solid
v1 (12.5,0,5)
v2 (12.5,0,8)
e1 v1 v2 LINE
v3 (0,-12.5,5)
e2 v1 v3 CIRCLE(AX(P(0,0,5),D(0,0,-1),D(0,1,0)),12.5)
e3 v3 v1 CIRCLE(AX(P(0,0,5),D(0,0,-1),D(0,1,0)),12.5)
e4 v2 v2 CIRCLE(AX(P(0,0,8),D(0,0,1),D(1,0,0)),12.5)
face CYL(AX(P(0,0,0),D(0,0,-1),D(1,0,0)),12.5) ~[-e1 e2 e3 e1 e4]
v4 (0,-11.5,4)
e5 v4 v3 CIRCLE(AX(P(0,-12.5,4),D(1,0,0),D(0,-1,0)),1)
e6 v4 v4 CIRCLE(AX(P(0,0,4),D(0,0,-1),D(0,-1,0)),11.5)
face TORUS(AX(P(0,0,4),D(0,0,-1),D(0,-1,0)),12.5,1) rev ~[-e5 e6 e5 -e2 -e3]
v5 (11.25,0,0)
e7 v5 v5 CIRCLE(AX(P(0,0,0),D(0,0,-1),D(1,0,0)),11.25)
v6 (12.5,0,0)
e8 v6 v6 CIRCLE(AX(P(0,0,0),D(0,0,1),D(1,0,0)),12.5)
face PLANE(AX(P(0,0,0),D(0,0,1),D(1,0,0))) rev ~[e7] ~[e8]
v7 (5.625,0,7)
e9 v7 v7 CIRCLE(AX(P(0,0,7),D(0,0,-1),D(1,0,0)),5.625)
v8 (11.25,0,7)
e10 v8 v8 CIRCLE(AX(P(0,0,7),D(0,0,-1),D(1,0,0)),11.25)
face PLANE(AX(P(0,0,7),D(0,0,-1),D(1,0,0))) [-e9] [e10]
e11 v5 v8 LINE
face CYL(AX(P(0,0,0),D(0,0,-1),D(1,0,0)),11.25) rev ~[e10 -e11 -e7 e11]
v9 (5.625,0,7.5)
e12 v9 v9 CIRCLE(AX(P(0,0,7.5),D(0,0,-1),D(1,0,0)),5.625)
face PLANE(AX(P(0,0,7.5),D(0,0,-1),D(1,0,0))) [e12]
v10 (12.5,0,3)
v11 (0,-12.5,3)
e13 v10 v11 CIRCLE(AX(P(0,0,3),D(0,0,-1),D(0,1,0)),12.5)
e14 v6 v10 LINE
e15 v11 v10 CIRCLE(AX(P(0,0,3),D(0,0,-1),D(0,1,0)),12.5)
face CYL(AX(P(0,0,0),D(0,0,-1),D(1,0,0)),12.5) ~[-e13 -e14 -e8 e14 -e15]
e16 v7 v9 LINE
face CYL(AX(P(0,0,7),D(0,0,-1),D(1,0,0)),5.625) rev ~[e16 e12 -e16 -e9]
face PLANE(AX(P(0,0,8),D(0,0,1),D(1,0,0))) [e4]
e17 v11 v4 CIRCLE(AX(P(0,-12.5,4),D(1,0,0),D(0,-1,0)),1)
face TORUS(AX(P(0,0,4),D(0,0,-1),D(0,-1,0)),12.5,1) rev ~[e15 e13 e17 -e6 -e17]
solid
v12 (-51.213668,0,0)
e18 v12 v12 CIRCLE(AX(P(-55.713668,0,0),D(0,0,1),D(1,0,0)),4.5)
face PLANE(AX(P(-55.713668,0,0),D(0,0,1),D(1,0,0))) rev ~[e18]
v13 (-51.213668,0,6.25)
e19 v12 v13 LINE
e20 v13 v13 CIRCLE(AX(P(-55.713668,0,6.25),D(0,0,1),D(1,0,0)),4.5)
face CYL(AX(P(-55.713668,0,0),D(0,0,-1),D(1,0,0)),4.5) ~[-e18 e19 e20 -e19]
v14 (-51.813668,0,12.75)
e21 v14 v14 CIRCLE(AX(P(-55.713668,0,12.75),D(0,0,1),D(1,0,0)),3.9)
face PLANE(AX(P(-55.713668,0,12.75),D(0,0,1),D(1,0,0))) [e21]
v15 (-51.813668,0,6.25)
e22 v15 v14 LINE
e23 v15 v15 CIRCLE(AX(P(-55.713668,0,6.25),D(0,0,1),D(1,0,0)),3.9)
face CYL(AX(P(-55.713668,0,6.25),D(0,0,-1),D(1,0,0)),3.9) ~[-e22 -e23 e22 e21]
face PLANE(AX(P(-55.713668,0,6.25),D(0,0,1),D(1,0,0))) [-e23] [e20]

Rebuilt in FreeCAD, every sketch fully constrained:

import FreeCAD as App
import Part
import Sketcher

doc = App.newDocument("Part")
body = doc.addObject("PartDesign::Body", "Body")

# Sketch on XY plane
sketch1 = doc.addObject("Sketcher::SketchObject", "Sketch")
body.addObject(sketch1)
sketch1.AttachmentSupport = (doc.XY_Plane, [""])
sketch1.MapMode = "FlatFace"
sketch1.addGeometry(Part.Circle(App.Vector(0, 0, 0), App.Vector(0, 0, 1), 12), False)
sketch1.addConstraint(Sketcher.Constraint("Coincident", 0, 3, -1, 1))
sketch1.addConstraint(Sketcher.Constraint("Diameter", 0, 25.0))
pad1 = doc.addObject("PartDesign::Pad", "Pad")
body.addObject(pad1)
pad1.Profile = sketch1
pad1.Length = 8

# Sketch on XZ plane
sketch2 = doc.addObject("Sketcher::SketchObject", "Sketch001")
body.addObject(sketch2)
sketch2.AttachmentSupport = (doc.XZ_Plane, [""])
sketch2.MapMode = "FlatFace"
sketch2.addGeometry(Part.Circle(App.Vector(-12.5, 4, 0), App.Vector(0, 0, 1), 1), False)
sketch2.addConstraint(Sketcher.Constraint("Diameter", 0, 2.0))
sketch2.addConstraint(Sketcher.Constraint("DistanceY", -1, 1, 0, 3, 4.0))
sketch2.addConstraint(Sketcher.Constraint("DistanceX", 0, 3, -1, 1, 12.5))

# Sketch on XY plane
sketch3 = doc.addObject("Sketcher::SketchObject", "Sketch002")
body.addObject(sketch3)
sketch3.AttachmentSupport = (doc.XY_Plane, [""])
sketch3.MapMode = "FlatFace"
sketch3.addGeometry(Part.Circle(App.Vector(0, 0, 0), App.Vector(0, 0, 1), 12), False)
sketch3.addConstraint(Sketcher.Constraint("Coincident", 0, 3, -1, 1))
sketch3.addConstraint(Sketcher.Constraint("Diameter", 0, 25.0))
doc.recompute()

subtractivepipe = doc.addObject("PartDesign::SubtractivePipe", "SubtractivePipe")
body.addObject(subtractivepipe)
subtractivepipe.Profile = sketch2
subtractivepipe.Spine = (sketch3, ["Edge1"])

# Sketch on XY plane
sketch4 = doc.addObject("Sketcher::SketchObject", "Sketch003")
body.addObject(sketch4)
sketch4.AttachmentSupport = (doc.XY_Plane, [""])
sketch4.MapMode = "FlatFace"
sketch4.addGeometry(Part.Circle(App.Vector(0, 0, 0), App.Vector(0, 0, 1), 11), False)
sketch4.addConstraint(Sketcher.Constraint("Coincident", 0, 3, -1, 1))
sketch4.addConstraint(Sketcher.Constraint("Diameter", 0, 22.5))
pocket1 = doc.addObject("PartDesign::Pocket", "Pocket")
body.addObject(pocket1)
pocket1.Profile = sketch4
pocket1.Length = 7
pocket1.Reversed = True

# Sketch on XY plane
sketch5 = doc.addObject("Sketcher::SketchObject", "Sketch004")
body.addObject(sketch5)
sketch5.AttachmentSupport = (doc.XY_Plane, [""])
sketch5.MapMode = "FlatFace"
sketch5.AttachmentOffset = App.Placement(App.Vector(0, 0, 7), App.Rotation())
sketch5.addGeometry(Part.Circle(App.Vector(0, 0, 0), App.Vector(0, 0, 1), 6), False)
sketch5.addConstraint(Sketcher.Constraint("Coincident", 0, 3, -1, 1))
sketch5.addConstraint(Sketcher.Constraint("Diameter", 0, 11.25))
pocket2 = doc.addObject("PartDesign::Pocket", "Pocket001")
body.addObject(pocket2)
pocket2.Profile = sketch5
pocket2.Length = 0.5
pocket2.Reversed = True
body2 = doc.addObject("PartDesign::Body", "Body001")

# Sketch on XY plane
sketch6 = doc.addObject("Sketcher::SketchObject", "Sketch005")
body2.addObject(sketch6)
sketch6.AttachmentSupport = (doc.getObject("XY_Plane001"), [""])
sketch6.MapMode = "FlatFace"
sketch6.addGeometry(Part.Circle(App.Vector(-55.7, 0, 0), App.Vector(0, 0, 1), 4.5), False)
sketch6.addConstraint(Sketcher.Constraint("PointOnObject", 0, 3, -1))
sketch6.addConstraint(Sketcher.Constraint("Diameter", 0, 9.0))
sketch6.addConstraint(Sketcher.Constraint("DistanceX", 0, 3, -1, 1, 55.713668))
pad2 = doc.addObject("PartDesign::Pad", "Pad001")
body2.addObject(pad2)
pad2.Profile = sketch6
pad2.Length = 6.25

# Sketch on XY plane
sketch7 = doc.addObject("Sketcher::SketchObject", "Sketch006")
body2.addObject(sketch7)
sketch7.AttachmentSupport = (doc.getObject("XY_Plane001"), [""])
sketch7.MapMode = "FlatFace"
sketch7.AttachmentOffset = App.Placement(App.Vector(0, 0, 6.25), App.Rotation())
sketch7.addGeometry(Part.Circle(App.Vector(-55.7, 0, 0), App.Vector(0, 0, 1), 3.9), False)
sketch7.addConstraint(Sketcher.Constraint("PointOnObject", 0, 3, -1))
sketch7.addConstraint(Sketcher.Constraint("Diameter", 0, 7.8))
sketch7.addConstraint(Sketcher.Constraint("DistanceX", 0, 3, -1, 1, 55.713668))
pad3 = doc.addObject("PartDesign::Pad", "Pad002")
body2.addObject(pad3)
pad3.Profile = sketch7
pad3.Length = 6.5

doc.recompute()
